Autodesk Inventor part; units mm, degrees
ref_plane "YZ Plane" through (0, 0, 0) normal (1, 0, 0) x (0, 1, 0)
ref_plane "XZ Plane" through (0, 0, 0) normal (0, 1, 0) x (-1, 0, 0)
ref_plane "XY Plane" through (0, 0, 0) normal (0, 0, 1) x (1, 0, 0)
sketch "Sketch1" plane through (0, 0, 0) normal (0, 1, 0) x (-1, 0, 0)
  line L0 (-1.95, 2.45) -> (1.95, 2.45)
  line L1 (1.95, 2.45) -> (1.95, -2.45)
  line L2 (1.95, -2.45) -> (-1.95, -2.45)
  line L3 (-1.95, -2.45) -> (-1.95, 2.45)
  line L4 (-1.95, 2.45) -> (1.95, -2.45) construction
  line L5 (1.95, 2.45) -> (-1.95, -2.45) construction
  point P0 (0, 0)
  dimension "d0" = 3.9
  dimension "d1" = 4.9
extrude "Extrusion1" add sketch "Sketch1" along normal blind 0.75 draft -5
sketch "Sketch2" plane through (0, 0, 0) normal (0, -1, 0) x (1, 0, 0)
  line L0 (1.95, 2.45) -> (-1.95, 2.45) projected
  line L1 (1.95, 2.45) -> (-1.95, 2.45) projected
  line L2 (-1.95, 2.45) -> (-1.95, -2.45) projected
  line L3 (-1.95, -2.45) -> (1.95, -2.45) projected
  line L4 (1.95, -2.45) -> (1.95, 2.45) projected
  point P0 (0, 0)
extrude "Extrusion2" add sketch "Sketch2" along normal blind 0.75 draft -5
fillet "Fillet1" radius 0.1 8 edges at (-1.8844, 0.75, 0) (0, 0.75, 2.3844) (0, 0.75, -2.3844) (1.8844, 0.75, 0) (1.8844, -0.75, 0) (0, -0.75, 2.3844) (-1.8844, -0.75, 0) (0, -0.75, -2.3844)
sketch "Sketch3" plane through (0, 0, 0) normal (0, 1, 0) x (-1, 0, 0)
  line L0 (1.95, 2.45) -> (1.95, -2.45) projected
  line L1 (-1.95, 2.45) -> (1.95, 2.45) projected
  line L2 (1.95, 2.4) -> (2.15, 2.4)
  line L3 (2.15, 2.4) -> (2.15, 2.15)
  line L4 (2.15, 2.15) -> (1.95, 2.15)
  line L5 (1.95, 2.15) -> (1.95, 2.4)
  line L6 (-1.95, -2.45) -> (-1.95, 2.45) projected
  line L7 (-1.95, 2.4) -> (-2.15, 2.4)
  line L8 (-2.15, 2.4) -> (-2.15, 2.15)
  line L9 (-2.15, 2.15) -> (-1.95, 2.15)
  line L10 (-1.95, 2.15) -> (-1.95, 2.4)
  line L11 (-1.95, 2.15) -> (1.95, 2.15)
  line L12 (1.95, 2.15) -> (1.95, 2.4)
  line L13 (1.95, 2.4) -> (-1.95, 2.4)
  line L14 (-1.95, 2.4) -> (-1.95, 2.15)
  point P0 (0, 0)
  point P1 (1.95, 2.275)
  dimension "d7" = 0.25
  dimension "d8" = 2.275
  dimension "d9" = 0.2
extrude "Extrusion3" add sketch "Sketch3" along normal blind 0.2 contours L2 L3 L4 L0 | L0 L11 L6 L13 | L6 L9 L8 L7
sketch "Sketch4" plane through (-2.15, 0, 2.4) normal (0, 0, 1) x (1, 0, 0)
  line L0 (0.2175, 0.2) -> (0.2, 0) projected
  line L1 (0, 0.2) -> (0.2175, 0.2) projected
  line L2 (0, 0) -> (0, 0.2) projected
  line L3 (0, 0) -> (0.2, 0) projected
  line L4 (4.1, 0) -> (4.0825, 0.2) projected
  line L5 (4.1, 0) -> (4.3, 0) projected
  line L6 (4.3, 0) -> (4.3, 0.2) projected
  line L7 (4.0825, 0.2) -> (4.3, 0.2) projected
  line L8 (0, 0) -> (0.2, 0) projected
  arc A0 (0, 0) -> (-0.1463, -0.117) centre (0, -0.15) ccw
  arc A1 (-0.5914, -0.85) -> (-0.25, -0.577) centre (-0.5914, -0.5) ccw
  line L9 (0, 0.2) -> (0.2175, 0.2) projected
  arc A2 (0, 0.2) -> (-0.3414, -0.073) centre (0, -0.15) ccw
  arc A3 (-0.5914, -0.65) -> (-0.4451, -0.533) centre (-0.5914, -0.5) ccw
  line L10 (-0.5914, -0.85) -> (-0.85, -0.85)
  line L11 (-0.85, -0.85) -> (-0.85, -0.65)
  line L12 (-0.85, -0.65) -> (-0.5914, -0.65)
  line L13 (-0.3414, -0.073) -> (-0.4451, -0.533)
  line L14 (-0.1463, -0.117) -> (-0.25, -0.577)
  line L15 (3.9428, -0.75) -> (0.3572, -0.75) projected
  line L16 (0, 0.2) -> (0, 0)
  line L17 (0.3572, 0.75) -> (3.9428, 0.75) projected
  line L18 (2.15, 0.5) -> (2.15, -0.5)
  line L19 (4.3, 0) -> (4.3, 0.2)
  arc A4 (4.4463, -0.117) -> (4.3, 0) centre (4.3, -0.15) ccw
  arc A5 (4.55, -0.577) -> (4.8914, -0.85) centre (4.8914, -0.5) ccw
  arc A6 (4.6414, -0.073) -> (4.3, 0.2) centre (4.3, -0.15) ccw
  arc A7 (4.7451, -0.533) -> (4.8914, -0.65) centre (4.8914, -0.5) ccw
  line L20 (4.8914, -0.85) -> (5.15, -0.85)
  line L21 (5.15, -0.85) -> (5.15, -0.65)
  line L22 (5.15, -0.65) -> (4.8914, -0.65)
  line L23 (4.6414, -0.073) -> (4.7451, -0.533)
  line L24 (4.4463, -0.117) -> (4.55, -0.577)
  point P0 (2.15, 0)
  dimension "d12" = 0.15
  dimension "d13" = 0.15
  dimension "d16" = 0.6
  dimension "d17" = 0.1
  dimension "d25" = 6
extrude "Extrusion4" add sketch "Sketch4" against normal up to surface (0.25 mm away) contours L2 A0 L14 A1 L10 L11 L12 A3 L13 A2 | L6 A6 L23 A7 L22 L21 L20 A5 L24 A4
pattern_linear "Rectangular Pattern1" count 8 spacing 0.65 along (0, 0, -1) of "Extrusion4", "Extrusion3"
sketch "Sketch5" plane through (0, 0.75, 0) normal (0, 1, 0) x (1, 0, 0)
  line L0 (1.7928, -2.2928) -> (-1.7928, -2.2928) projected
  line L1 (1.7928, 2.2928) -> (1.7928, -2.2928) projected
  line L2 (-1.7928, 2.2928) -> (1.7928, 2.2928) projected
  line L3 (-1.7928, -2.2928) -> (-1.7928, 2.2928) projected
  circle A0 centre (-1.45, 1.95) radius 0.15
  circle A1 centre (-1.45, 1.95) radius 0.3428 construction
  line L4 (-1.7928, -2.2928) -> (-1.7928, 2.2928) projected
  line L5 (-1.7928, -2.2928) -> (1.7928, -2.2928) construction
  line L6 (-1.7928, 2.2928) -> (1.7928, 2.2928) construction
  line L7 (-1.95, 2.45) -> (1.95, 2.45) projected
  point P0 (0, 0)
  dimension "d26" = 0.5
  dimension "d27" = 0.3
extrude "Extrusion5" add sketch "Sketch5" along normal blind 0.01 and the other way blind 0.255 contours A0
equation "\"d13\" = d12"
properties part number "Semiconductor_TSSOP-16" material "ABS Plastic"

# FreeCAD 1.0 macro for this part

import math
import FreeCAD as App
import Part
import Sketcher
Q = App.Units.Quantity


def edges_at(feature, points):
    """Names of the edges that pass closest to the given points."""
    edges = feature.Shape.Edges
    near = lambda p: min(range(len(edges)), key=lambda i: edges[i].distToShape(Part.Vertex(*p))[0])
    return sorted({f"Edge{near(p) + 1}" for p in points})


def add_polygon(sketch, points):
    """Adds a closed chain of lines whose ends are joined by coincident constraints."""
    first, n = sketch.GeometryCount, len(points)
    for a, b in zip(points, points[1:] + points[:1]):
        sketch.addGeometry(Part.LineSegment(App.Vector(*a, 0), App.Vector(*b, 0)), False)
    for i in range(n):
        sketch.addConstraint(Sketcher.Constraint("Coincident", first + i, 2, first + (i + 1) % n, 1))

doc = App.newDocument("Part")
body = doc.addObject("PartDesign::Body", "Body")

# Sketch on XZ plane
sketch1 = doc.addObject("Sketcher::SketchObject", "Sketch")
body.addObject(sketch1)
sketch1.AttachmentSupport = (doc.XZ_Plane, [""])
sketch1.MapMode = "FlatFace"
add_polygon(sketch1, [(-1.9, 2.5), (1.9, 2.5), (1.9, -2.5), (-1.9, -2.5)])  # lines 0-3
sketch1.addConstraint([
    Sketcher.Constraint("Horizontal", 0),
    Sketcher.Constraint("Vertical", 1),
    Sketcher.Constraint("Horizontal", 2),
    Sketcher.Constraint("Vertical", 3),
    Sketcher.Constraint("Symmetric", 0, 2, 2, 2, -1, 1),
    Sketcher.Constraint("DistanceX", 0, 1, 0, 2, Q("3.9 mm")),
    Sketcher.Constraint("DistanceY", 1, 2, 1, 1, Q("4.9 mm")),
])
pad1 = doc.addObject("PartDesign::Pad", "Pad")
body.addObject(pad1)
pad1.Profile = sketch1
pad1.Length = 0.75
pad1.Reversed = True
pad1.TaperAngle = -5

# Sketch on XZ plane
sketch2 = doc.addObject("Sketcher::SketchObject", "Sketch001")
body.addObject(sketch2)
sketch2.AttachmentSupport = (doc.XZ_Plane, [""])
sketch2.MapMode = "FlatFace"
add_polygon(sketch2, [(1.9, -2.5), (1.9, 2.5), (-1.9, 2.5), (-1.9, -2.5)])  # lines 0-3
sketch2.addConstraint([
    Sketcher.Constraint("Vertical", 0),
    Sketcher.Constraint("Horizontal", 1),
    Sketcher.Constraint("Vertical", 2),
    Sketcher.Constraint("Horizontal", 3),
    Sketcher.Constraint("Symmetric", 0, 2, 2, 2, -1, 1),
    Sketcher.Constraint("DistanceX", 1, 2, 1, 1, Q("3.9 mm")),
    Sketcher.Constraint("DistanceY", 0, 1, 0, 2, Q("4.9 mm")),
])
pad2 = doc.addObject("PartDesign::Pad", "Pad001")
body.addObject(pad2)
pad2.Profile = sketch2
pad2.Length = 0.75
pad2.TaperAngle = -5
doc.recompute()

fillet = doc.addObject("PartDesign::Fillet", "Fillet")
body.addObject(fillet)
fillet.Base = (pad2, edges_at(pad2, [
    (-1.884, 0.75, 0),
    (0, 0.75, 2.384),
    (0, 0.75, -2.384),
    (1.884, 0.75, 0),
    (1.884, -0.75, 0),
    (0, -0.75, 2.384),
    (-1.884, -0.75, 0),
    (0, -0.75, -2.384),
]))
fillet.Radius = 0.1

# Sketch on XZ plane
sketch3 = doc.addObject("Sketcher::SketchObject", "Sketch002")
body.addObject(sketch3)
sketch3.AttachmentSupport = (doc.XZ_Plane, [""])
sketch3.MapMode = "FlatFace"
add_polygon(sketch3, [(-2.15, 2.4), (2.15, 2.4), (2.15, 2.15), (-2.15, 2.15)])  # lines 0-3
sketch3.addConstraint([
    Sketcher.Constraint("Horizontal", 0),
    Sketcher.Constraint("Vertical", 1),
    Sketcher.Constraint("Horizontal", 2),
    Sketcher.Constraint("Vertical", 3),
    Sketcher.Constraint("DistanceY", 1, 2, 1, 1, Q("0.25 mm")),
    Sketcher.Constraint("DistanceX", 0, 1, 0, 2, Q("4.3 mm")),
    Sketcher.Constraint("DistanceY", -1, 1, 0, 2, Q("2.4 mm")),
    Sketcher.Constraint("DistanceX", -1, 1, 0, 2, Q("2.15 mm")),
])
pad3 = doc.addObject("PartDesign::Pad", "Pad002")
body.addObject(pad3)
pad3.Profile = sketch3
pad3.Length = 0.2
pad3.Reversed = True

# Sketch on XY plane
sketch4 = doc.addObject("Sketcher::SketchObject", "Sketch003")
body.addObject(sketch4)
sketch4.AttachmentSupport = (doc.XY_Plane, [""])
sketch4.MapMode = "FlatFace"
sketch4.AttachmentOffset = App.Placement(App.Vector(0, 0, 2.4), App.Rotation())
sketch4.addGeometry([
    Part.LineSegment(App.Vector(-2.15, 0, 0), App.Vector(-2.15, 0.2, 0)),  # 0
    Part.ArcOfCircle(Part.Circle(App.Vector(-2.15, -0.15, 0), App.Vector(0, 0, 1), 0.35), math.radians(90), math.radians(167)),  # 1
    Part.LineSegment(App.Vector(-2.49, -0.07, 0), App.Vector(-2.6, -0.53, 0)),  # 2
    Part.ArcOfCircle(Part.Circle(App.Vector(-2.74, -0.5, 0), App.Vector(0, 0, 1), 0.15), math.radians(-90), math.radians(-13)),  # 3
    Part.LineSegment(App.Vector(-2.74, -0.65, 0), App.Vector(-3, -0.65, 0)),  # 4
    Part.LineSegment(App.Vector(-3, -0.65, 0), App.Vector(-3, -0.85, 0)),  # 5
    Part.LineSegment(App.Vector(-3, -0.85, 0), App.Vector(-2.74, -0.85, 0)),  # 6
    Part.ArcOfCircle(Part.Circle(App.Vector(-2.74, -0.5, 0), App.Vector(0, 0, 1), 0.35), math.radians(-90), math.radians(-13)),  # 7
    Part.LineSegment(App.Vector(-2.4, -0.58, 0), App.Vector(-2.3, -0.12, 0)),  # 8
    Part.ArcOfCircle(Part.Circle(App.Vector(-2.15, -0.15, 0), App.Vector(0, 0, 1), 0.15), math.radians(90), math.radians(167)),  # 9
    Part.LineSegment(App.Vector(2.15, 0.2, 0), App.Vector(2.15, 0, 0)),  # 10
    Part.ArcOfCircle(Part.Circle(App.Vector(2.15, -0.15, 0), App.Vector(0, 0, 1), 0.15), math.radians(13), math.radians(90)),  # 11
    Part.LineSegment(App.Vector(2.3, -0.12, 0), App.Vector(2.4, -0.58, 0)),  # 12
    Part.ArcOfCircle(Part.Circle(App.Vector(2.74, -0.5, 0), App.Vector(0, 0, 1), 0.35), math.radians(-167), math.radians(-90)),  # 13
    Part.LineSegment(App.Vector(2.74, -0.85, 0), App.Vector(3, -0.85, 0)),  # 14
    Part.LineSegment(App.Vector(3, -0.85, 0), App.Vector(3, -0.65, 0)),  # 15
    Part.LineSegment(App.Vector(3, -0.65, 0), App.Vector(2.74, -0.65, 0)),  # 16
    Part.ArcOfCircle(Part.Circle(App.Vector(2.74, -0.5, 0), App.Vector(0, 0, 1), 0.15), math.radians(-167), math.radians(-90)),  # 17
    Part.LineSegment(App.Vector(2.6, -0.53, 0), App.Vector(2.49, -0.07, 0)),  # 18
    Part.ArcOfCircle(Part.Circle(App.Vector(2.15, -0.15, 0), App.Vector(0, 0, 1), 0.35), math.radians(13), math.radians(90)),  # 19
], False)
sketch4.addConstraint([
    Sketcher.Constraint("Coincident", 0, 2, 1, 1),
    Sketcher.Constraint("Tangent", 1, 2, 2, 1),
    Sketcher.Constraint("Tangent", 2, 2, 3, 2),
    Sketcher.Constraint("Tangent", 3, 1, 4, 1),
    Sketcher.Constraint("Coincident", 4, 2, 5, 1),
    Sketcher.Constraint("Coincident", 5, 2, 6, 1),
    Sketcher.Constraint("Tangent", 6, 2, 7, 1),
    Sketcher.Constraint("Tangent", 7, 2, 8, 1),
    Sketcher.Constraint("Tangent", 8, 2, 9, 2),
    Sketcher.Constraint("Coincident", 9, 1, 0, 1),
    Sketcher.Constraint("Coincident", 10, 2, 11, 2),
    Sketcher.Constraint("Tangent", 11, 1, 12, 1),
    Sketcher.Constraint("Tangent", 12, 2, 13, 1),
    Sketcher.Constraint("Tangent", 13, 2, 14, 1),
    Sketcher.Constraint("Coincident", 14, 2, 15, 1),
    Sketcher.Constraint("Coincident", 15, 2, 16, 1),
    Sketcher.Constraint("Tangent", 16, 2, 17, 2),
    Sketcher.Constraint("Tangent", 17, 1, 18, 1),
    Sketcher.Constraint("Tangent", 18, 2, 19, 1),
    Sketcher.Constraint("Coincident", 19, 2, 10, 1),
    Sketcher.Constraint("Vertical", 0),
    Sketcher.Constraint("Horizontal", 4),
    Sketcher.Constraint("Vertical", 5),
    Sketcher.Constraint("Horizontal", 6),
    Sketcher.Constraint("Vertical", 10),
    Sketcher.Constraint("Horizontal", 14),
    Sketcher.Constraint("Vertical", 15),
    Sketcher.Constraint("Horizontal", 16),
    Sketcher.Constraint("Coincident", 7, 3, 3, 3),
    Sketcher.Constraint("Coincident", 9, 3, 1, 3),
    Sketcher.Constraint("Coincident", 17, 3, 13, 3),
    Sketcher.Constraint("Coincident", 19, 3, 11, 3),
    Sketcher.Constraint("Equal", 1, 7),
    Sketcher.Constraint("Equal", 3, 9),
    Sketcher.Constraint("Equal", 9, 11),
    Sketcher.Constraint("Equal", 7, 13),
    Sketcher.Constraint("Equal", 11, 17),
    Sketcher.Constraint("Equal", 13, 19),
    Sketcher.Constraint("Symmetric", 9, 1, 10, 2, -1, 1),
    Sketcher.Constraint("Symmetric", 1, 3, 11, 3, -2),
    Sketcher.Constraint("Symmetric", 3, 3, 13, 3, -2),
    Sketcher.Constraint("Vertical", 9, 3, 0, 2),
    Sketcher.Constraint("Equal", 6, 14),
    Sketcher.Constraint("Radius", 3, Q("0.15 mm")),
    Sketcher.Constraint("DistanceX", 12, 2, 14, 2, Q("0.6 mm")),
    Sketcher.Constraint("Radius", 1, Q("0.35 mm")),
    Sketcher.Constraint("DistanceX", 4, 2, -1, 1, Q("3 mm")),
    Sketcher.Constraint("DistanceY", 3, 3, -1, 1, Q("0.5 mm")),
    Sketcher.Constraint("DistanceX", 1, 3, 11, 3, Q("4.3 mm")),
])
pad4 = doc.addObject("PartDesign::Pad", "Pad003")
body.addObject(pad4)
pad4.Profile = sketch4
pad4.Length = 0.25
pad4.Reversed = True
doc.recompute()

linearpattern = doc.addObject("PartDesign::LinearPattern", "LinearPattern")
body.addObject(linearpattern)
linearpattern.Originals = [pad4, pad3]
linearpattern.Direction = (doc.Z_Axis, [""])
linearpattern.Mode = "offset"
linearpattern.Offset = 0.65
linearpattern.Occurrences = 8
linearpattern.Reversed = True
body.Tip = linearpattern

# Sketch on XZ plane
sketch5 = doc.addObject("Sketcher::SketchObject", "Sketch004")
body.addObject(sketch5)
sketch5.AttachmentSupport = (doc.XZ_Plane, [""])
sketch5.MapMode = "FlatFace"
sketch5.AttachmentOffset = App.Placement(App.Vector(0, 0, -0.75), App.Rotation())
sketch5.addGeometry(Part.Circle(App.Vector(-1.45, -1.95, 0), App.Vector(0, 0, 1), 0.15), False)
sketch5.addConstraint([
    Sketcher.Constraint("Diameter", 0, Q("0.3 mm")),
    Sketcher.Constraint("DistanceX", 0, 3, -1, 1, Q("1.45 mm")),
    Sketcher.Constraint("DistanceY", 0, 3, -1, 1, Q("1.95 mm")),
])
pad5 = doc.addObject("PartDesign::Pad", "Pad004")
body.addObject(pad5)
pad5.Profile = sketch5
pad5.Type = "TwoLengths"
pad5.Length = 0.01
pad5.Length2 = 0.255
pad5.Reversed = True

doc.recompute()
